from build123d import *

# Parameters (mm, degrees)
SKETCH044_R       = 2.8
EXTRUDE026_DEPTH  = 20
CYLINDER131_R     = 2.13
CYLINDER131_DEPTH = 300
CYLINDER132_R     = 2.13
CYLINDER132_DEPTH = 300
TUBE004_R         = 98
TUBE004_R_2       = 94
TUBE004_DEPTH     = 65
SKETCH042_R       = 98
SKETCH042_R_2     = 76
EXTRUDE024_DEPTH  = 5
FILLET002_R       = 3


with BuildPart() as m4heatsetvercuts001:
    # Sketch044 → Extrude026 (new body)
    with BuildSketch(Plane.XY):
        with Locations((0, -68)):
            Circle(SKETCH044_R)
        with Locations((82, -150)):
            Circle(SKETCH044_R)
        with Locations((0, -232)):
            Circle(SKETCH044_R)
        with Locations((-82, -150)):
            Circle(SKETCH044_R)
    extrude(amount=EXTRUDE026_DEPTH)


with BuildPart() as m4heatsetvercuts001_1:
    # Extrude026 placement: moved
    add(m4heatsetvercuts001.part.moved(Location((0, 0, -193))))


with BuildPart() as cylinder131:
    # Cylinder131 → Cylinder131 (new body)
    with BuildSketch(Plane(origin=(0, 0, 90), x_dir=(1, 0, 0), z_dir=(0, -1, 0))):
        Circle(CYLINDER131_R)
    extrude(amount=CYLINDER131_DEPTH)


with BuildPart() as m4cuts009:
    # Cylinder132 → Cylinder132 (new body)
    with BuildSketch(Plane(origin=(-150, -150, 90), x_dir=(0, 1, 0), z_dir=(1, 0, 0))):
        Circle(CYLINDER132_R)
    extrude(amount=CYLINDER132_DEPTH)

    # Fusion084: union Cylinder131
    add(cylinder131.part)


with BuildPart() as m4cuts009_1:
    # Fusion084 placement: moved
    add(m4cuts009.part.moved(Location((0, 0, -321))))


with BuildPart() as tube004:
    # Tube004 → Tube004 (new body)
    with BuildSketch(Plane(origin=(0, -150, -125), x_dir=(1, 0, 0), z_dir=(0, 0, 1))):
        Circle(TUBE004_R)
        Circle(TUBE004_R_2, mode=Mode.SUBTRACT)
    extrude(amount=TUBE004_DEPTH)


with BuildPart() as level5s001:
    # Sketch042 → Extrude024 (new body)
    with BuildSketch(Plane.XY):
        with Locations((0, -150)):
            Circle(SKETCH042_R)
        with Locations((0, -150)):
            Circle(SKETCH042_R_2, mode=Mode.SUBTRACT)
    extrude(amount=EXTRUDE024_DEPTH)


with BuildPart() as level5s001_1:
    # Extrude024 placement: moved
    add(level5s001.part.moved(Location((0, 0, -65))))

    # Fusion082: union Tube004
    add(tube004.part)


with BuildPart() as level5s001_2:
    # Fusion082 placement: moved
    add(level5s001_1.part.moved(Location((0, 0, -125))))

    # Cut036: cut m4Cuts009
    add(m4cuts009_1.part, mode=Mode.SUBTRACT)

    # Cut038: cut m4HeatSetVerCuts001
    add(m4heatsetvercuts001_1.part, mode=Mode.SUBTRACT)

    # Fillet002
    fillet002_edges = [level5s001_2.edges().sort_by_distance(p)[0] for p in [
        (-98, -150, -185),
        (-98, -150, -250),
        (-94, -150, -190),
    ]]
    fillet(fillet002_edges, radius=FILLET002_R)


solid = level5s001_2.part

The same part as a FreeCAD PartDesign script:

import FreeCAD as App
import Part
import Sketcher
from FreeCAD import Vector
Q = App.Units.Quantity


def edges_at(feature, points):
    """Names of the edges that pass closest to the given points."""
    edges = feature.Shape.Edges
    near = lambda p: min(range(len(edges)), key=lambda i: edges[i].distToShape(Part.Vertex(*p))[0])
    return sorted({f"Edge{near(p) + 1}" for p in points})

doc = App.newDocument("Part")
body = doc.addObject("PartDesign::Body", "Body")
body.AllowCompound = True

# Sketch on XY plane
sketch1 = doc.addObject("Sketcher::SketchObject", "Sketch")
body.addObject(sketch1)
sketch1.AttachmentSupport = (doc.XY_Plane, [""])
sketch1.MapMode = "FlatFace"
sketch1.addGeometry(Part.Circle(Vector(0, -68, 0), Vector(0, 0, 1), 2.8), False)
sketch1.addGeometry(Part.Circle(Vector(82, -150, 0), Vector(0, 0, 1), 2.8), False)
sketch1.addGeometry(Part.Circle(Vector(0, -232, 0), Vector(0, 0, 1), 2.8), False)
sketch1.addGeometry(Part.Circle(Vector(-82, -150, 0), Vector(0, 0, 1), 2.8), False)
sketch1.addConstraint(Sketcher.Constraint("Equal", 0, 1))
sketch1.addConstraint(Sketcher.Constraint("Equal", 1, 2))
sketch1.addConstraint(Sketcher.Constraint("Equal", 2, 3))
sketch1.addConstraint(Sketcher.Constraint("Symmetric", 1, 3, 3, 3, -2))
sketch1.addConstraint(Sketcher.Constraint("PointOnObject", 0, 3, -2))
sketch1.addConstraint(Sketcher.Constraint("PointOnObject", 2, 3, -2))
sketch1.addConstraint(Sketcher.Constraint("Diameter", 0, Q("5.6 mm")))
sketch1.addConstraint(Sketcher.Constraint("DistanceY", 0, 3, -1, 1, Q("68 mm")))
sketch1.addConstraint(Sketcher.Constraint("DistanceX", -1, 1, 1, 3, Q("82 mm")))
sketch1.addConstraint(Sketcher.Constraint("DistanceY", 1, 3, -1, 1, Q("150 mm")))
sketch1.addConstraint(Sketcher.Constraint("DistanceY", 2, 3, -1, 1, Q("232 mm")))
pad1 = doc.addObject("PartDesign::Pad", "Pad")
body.addObject(pad1)
pad1.Profile = sketch1
pad1.Length = 20
body2 = doc.addObject("PartDesign::Body", "Body001")
body2.AllowCompound = True
doc.recompute()

body.Placement = App.Placement(Vector(0, 0, -193), App.Rotation(Vector(0, 0, 1), 0))
boolean = doc.addObject("PartDesign::Boolean", "Boolean")
body2.addObject(boolean)
boolean.Type = "Fuse"
boolean.addObjects([body])
body3 = doc.addObject("PartDesign::Body", "Body002")

# Sketch on XZ plane
sketch2 = doc.addObject("Sketcher::SketchObject", "Sketch001")
body3.addObject(sketch2)
sketch2.AttachmentSupport = (doc.getObject("XZ_Plane002"), [""])
sketch2.MapMode = "FlatFace"
sketch2.addGeometry(Part.Circle(Vector(0, 90, 0), Vector(0, 0, 1), 2.1), False)
sketch2.addConstraint(Sketcher.Constraint("PointOnObject", 0, 3, -2))
sketch2.addConstraint(Sketcher.Constraint("Diameter", 0, Q("4.26 mm")))
sketch2.addConstraint(Sketcher.Constraint("DistanceY", -1, 1, 0, 3, Q("90 mm")))
pad2 = doc.addObject("PartDesign::Pad", "Pad001")
body3.addObject(pad2)
pad2.Profile = sketch2
pad2.Length = 300
body4 = doc.addObject("PartDesign::Body", "Body003")

# Sketch on YZ plane
sketch3 = doc.addObject("Sketcher::SketchObject", "Sketch002")
body4.addObject(sketch3)
sketch3.AttachmentSupport = (doc.getObject("YZ_Plane003"), [""])
sketch3.MapMode = "FlatFace"
sketch3.AttachmentOffset = App.Placement(Vector(0, 0, -150), App.Rotation())
sketch3.addGeometry(Part.Circle(Vector(-150, 90, 0), Vector(0, 0, 1), 2.1), False)
sketch3.addConstraint(Sketcher.Constraint("Diameter", 0, Q("4.26 mm")))
sketch3.addConstraint(Sketcher.Constraint("DistanceX", 0, 3, -1, 1, Q("150 mm")))
sketch3.addConstraint(Sketcher.Constraint("DistanceY", -1, 1, 0, 3, Q("90 mm")))
pad3 = doc.addObject("PartDesign::Pad", "Pad002")
body4.addObject(pad3)
pad3.Profile = sketch3
pad3.Length = 300
doc.recompute()

boolean2 = doc.addObject("PartDesign::Boolean", "Boolean001")
body4.addObject(boolean2)
boolean2.Type = "Fuse"
boolean2.addObjects([body3])
body5 = doc.addObject("PartDesign::Body", "Body004")
doc.recompute()

body4.Placement = App.Placement(Vector(0, 0, -321), App.Rotation(Vector(0, 0, 1), 0))
boolean3 = doc.addObject("PartDesign::Boolean", "Boolean002")
body5.addObject(boolean3)
boolean3.Type = "Fuse"
boolean3.addObjects([body4])
body6 = doc.addObject("PartDesign::Body", "Body005")

# Sketch on XY plane
sketch4 = doc.addObject("Sketcher::SketchObject", "Sketch003")
body6.addObject(sketch4)
sketch4.AttachmentSupport = (doc.getObject("XY_Plane005"), [""])
sketch4.MapMode = "FlatFace"
sketch4.AttachmentOffset = App.Placement(Vector(0, 0, -125), App.Rotation())
sketch4.addGeometry(Part.Circle(Vector(0, -150, 0), Vector(0, 0, 1), 98), False)
sketch4.addGeometry(Part.Circle(Vector(0, -150, 0), Vector(0, 0, 1), 94), False)
sketch4.addConstraint(Sketcher.Constraint("Coincident", 1, 3, 0, 3))
sketch4.addConstraint(Sketcher.Constraint("PointOnObject", 0, 3, -2))
sketch4.addConstraint(Sketcher.Constraint("Diameter", 0, Q("196 mm")))
sketch4.addConstraint(Sketcher.Constraint("Diameter", 1, Q("188 mm")))
sketch4.addConstraint(Sketcher.Constraint("DistanceY", 0, 3, -1, 1, Q("150 mm")))
pad4 = doc.addObject("PartDesign::Pad", "Pad003")
body6.addObject(pad4)
pad4.Profile = sketch4
pad4.Length = 65
body7 = doc.addObject("PartDesign::Body", "Body006")

# Sketch on XY plane
sketch5 = doc.addObject("Sketcher::SketchObject", "Sketch004")
body7.addObject(sketch5)
sketch5.AttachmentSupport = (doc.getObject("XY_Plane006"), [""])
sketch5.MapMode = "FlatFace"
sketch5.addGeometry(Part.Circle(Vector(0, -150, 0), Vector(0, 0, 1), 98), False)
sketch5.addGeometry(Part.Circle(Vector(0, -150, 0), Vector(0, 0, 1), 76), False)
sketch5.addConstraint(Sketcher.Constraint("Coincident", 1, 3, 0, 3))
sketch5.addConstraint(Sketcher.Constraint("PointOnObject", 0, 3, -2))
sketch5.addConstraint(Sketcher.Constraint("Diameter", 0, Q("196 mm")))
sketch5.addConstraint(Sketcher.Constraint("Diameter", 1, Q("152 mm")))
sketch5.addConstraint(Sketcher.Constraint("DistanceY", 0, 3, -1, 1, Q("150 mm")))
pad5 = doc.addObject("PartDesign::Pad", "Pad004")
body7.addObject(pad5)
pad5.Profile = sketch5
pad5.Length = 5
body8 = doc.addObject("PartDesign::Body", "Body007")
doc.recompute()

body7.Placement = App.Placement(Vector(0, 0, -65), App.Rotation(Vector(0, 0, 1), 0))
boolean4 = doc.addObject("PartDesign::Boolean", "Boolean003")
body8.addObject(boolean4)
boolean4.Type = "Fuse"
boolean4.addObjects([body7])
doc.recompute()

boolean5 = doc.addObject("PartDesign::Boolean", "Boolean004")
body8.addObject(boolean5)
boolean5.Type = "Fuse"
boolean5.addObjects([body6])
body9 = doc.addObject("PartDesign::Body", "Body008")
doc.recompute()

body8.Placement = App.Placement(Vector(0, 0, -125), App.Rotation(Vector(0, 0, 1), 0))
boolean6 = doc.addObject("PartDesign::Boolean", "Boolean005")
body9.addObject(boolean6)
boolean6.Type = "Fuse"
boolean6.addObjects([body8])
doc.recompute()

boolean7 = doc.addObject("PartDesign::Boolean", "Boolean006")
body9.addObject(boolean7)
boolean7.Type = "Cut"
boolean7.addObjects([body5])
doc.recompute()

boolean8 = doc.addObject("PartDesign::Boolean", "Boolean007")
body9.addObject(boolean8)
boolean8.Type = "Cut"
boolean8.addObjects([body2])
doc.recompute()

fillet = doc.addObject("PartDesign::Fillet", "Fillet")
body9.addObject(fillet)
fillet.Base = (boolean8, edges_at(boolean8, [(-98, -150, -185), (-98, -150, -250), (-94, -150, -190)]))
fillet.Radius = 3

doc.recompute()
